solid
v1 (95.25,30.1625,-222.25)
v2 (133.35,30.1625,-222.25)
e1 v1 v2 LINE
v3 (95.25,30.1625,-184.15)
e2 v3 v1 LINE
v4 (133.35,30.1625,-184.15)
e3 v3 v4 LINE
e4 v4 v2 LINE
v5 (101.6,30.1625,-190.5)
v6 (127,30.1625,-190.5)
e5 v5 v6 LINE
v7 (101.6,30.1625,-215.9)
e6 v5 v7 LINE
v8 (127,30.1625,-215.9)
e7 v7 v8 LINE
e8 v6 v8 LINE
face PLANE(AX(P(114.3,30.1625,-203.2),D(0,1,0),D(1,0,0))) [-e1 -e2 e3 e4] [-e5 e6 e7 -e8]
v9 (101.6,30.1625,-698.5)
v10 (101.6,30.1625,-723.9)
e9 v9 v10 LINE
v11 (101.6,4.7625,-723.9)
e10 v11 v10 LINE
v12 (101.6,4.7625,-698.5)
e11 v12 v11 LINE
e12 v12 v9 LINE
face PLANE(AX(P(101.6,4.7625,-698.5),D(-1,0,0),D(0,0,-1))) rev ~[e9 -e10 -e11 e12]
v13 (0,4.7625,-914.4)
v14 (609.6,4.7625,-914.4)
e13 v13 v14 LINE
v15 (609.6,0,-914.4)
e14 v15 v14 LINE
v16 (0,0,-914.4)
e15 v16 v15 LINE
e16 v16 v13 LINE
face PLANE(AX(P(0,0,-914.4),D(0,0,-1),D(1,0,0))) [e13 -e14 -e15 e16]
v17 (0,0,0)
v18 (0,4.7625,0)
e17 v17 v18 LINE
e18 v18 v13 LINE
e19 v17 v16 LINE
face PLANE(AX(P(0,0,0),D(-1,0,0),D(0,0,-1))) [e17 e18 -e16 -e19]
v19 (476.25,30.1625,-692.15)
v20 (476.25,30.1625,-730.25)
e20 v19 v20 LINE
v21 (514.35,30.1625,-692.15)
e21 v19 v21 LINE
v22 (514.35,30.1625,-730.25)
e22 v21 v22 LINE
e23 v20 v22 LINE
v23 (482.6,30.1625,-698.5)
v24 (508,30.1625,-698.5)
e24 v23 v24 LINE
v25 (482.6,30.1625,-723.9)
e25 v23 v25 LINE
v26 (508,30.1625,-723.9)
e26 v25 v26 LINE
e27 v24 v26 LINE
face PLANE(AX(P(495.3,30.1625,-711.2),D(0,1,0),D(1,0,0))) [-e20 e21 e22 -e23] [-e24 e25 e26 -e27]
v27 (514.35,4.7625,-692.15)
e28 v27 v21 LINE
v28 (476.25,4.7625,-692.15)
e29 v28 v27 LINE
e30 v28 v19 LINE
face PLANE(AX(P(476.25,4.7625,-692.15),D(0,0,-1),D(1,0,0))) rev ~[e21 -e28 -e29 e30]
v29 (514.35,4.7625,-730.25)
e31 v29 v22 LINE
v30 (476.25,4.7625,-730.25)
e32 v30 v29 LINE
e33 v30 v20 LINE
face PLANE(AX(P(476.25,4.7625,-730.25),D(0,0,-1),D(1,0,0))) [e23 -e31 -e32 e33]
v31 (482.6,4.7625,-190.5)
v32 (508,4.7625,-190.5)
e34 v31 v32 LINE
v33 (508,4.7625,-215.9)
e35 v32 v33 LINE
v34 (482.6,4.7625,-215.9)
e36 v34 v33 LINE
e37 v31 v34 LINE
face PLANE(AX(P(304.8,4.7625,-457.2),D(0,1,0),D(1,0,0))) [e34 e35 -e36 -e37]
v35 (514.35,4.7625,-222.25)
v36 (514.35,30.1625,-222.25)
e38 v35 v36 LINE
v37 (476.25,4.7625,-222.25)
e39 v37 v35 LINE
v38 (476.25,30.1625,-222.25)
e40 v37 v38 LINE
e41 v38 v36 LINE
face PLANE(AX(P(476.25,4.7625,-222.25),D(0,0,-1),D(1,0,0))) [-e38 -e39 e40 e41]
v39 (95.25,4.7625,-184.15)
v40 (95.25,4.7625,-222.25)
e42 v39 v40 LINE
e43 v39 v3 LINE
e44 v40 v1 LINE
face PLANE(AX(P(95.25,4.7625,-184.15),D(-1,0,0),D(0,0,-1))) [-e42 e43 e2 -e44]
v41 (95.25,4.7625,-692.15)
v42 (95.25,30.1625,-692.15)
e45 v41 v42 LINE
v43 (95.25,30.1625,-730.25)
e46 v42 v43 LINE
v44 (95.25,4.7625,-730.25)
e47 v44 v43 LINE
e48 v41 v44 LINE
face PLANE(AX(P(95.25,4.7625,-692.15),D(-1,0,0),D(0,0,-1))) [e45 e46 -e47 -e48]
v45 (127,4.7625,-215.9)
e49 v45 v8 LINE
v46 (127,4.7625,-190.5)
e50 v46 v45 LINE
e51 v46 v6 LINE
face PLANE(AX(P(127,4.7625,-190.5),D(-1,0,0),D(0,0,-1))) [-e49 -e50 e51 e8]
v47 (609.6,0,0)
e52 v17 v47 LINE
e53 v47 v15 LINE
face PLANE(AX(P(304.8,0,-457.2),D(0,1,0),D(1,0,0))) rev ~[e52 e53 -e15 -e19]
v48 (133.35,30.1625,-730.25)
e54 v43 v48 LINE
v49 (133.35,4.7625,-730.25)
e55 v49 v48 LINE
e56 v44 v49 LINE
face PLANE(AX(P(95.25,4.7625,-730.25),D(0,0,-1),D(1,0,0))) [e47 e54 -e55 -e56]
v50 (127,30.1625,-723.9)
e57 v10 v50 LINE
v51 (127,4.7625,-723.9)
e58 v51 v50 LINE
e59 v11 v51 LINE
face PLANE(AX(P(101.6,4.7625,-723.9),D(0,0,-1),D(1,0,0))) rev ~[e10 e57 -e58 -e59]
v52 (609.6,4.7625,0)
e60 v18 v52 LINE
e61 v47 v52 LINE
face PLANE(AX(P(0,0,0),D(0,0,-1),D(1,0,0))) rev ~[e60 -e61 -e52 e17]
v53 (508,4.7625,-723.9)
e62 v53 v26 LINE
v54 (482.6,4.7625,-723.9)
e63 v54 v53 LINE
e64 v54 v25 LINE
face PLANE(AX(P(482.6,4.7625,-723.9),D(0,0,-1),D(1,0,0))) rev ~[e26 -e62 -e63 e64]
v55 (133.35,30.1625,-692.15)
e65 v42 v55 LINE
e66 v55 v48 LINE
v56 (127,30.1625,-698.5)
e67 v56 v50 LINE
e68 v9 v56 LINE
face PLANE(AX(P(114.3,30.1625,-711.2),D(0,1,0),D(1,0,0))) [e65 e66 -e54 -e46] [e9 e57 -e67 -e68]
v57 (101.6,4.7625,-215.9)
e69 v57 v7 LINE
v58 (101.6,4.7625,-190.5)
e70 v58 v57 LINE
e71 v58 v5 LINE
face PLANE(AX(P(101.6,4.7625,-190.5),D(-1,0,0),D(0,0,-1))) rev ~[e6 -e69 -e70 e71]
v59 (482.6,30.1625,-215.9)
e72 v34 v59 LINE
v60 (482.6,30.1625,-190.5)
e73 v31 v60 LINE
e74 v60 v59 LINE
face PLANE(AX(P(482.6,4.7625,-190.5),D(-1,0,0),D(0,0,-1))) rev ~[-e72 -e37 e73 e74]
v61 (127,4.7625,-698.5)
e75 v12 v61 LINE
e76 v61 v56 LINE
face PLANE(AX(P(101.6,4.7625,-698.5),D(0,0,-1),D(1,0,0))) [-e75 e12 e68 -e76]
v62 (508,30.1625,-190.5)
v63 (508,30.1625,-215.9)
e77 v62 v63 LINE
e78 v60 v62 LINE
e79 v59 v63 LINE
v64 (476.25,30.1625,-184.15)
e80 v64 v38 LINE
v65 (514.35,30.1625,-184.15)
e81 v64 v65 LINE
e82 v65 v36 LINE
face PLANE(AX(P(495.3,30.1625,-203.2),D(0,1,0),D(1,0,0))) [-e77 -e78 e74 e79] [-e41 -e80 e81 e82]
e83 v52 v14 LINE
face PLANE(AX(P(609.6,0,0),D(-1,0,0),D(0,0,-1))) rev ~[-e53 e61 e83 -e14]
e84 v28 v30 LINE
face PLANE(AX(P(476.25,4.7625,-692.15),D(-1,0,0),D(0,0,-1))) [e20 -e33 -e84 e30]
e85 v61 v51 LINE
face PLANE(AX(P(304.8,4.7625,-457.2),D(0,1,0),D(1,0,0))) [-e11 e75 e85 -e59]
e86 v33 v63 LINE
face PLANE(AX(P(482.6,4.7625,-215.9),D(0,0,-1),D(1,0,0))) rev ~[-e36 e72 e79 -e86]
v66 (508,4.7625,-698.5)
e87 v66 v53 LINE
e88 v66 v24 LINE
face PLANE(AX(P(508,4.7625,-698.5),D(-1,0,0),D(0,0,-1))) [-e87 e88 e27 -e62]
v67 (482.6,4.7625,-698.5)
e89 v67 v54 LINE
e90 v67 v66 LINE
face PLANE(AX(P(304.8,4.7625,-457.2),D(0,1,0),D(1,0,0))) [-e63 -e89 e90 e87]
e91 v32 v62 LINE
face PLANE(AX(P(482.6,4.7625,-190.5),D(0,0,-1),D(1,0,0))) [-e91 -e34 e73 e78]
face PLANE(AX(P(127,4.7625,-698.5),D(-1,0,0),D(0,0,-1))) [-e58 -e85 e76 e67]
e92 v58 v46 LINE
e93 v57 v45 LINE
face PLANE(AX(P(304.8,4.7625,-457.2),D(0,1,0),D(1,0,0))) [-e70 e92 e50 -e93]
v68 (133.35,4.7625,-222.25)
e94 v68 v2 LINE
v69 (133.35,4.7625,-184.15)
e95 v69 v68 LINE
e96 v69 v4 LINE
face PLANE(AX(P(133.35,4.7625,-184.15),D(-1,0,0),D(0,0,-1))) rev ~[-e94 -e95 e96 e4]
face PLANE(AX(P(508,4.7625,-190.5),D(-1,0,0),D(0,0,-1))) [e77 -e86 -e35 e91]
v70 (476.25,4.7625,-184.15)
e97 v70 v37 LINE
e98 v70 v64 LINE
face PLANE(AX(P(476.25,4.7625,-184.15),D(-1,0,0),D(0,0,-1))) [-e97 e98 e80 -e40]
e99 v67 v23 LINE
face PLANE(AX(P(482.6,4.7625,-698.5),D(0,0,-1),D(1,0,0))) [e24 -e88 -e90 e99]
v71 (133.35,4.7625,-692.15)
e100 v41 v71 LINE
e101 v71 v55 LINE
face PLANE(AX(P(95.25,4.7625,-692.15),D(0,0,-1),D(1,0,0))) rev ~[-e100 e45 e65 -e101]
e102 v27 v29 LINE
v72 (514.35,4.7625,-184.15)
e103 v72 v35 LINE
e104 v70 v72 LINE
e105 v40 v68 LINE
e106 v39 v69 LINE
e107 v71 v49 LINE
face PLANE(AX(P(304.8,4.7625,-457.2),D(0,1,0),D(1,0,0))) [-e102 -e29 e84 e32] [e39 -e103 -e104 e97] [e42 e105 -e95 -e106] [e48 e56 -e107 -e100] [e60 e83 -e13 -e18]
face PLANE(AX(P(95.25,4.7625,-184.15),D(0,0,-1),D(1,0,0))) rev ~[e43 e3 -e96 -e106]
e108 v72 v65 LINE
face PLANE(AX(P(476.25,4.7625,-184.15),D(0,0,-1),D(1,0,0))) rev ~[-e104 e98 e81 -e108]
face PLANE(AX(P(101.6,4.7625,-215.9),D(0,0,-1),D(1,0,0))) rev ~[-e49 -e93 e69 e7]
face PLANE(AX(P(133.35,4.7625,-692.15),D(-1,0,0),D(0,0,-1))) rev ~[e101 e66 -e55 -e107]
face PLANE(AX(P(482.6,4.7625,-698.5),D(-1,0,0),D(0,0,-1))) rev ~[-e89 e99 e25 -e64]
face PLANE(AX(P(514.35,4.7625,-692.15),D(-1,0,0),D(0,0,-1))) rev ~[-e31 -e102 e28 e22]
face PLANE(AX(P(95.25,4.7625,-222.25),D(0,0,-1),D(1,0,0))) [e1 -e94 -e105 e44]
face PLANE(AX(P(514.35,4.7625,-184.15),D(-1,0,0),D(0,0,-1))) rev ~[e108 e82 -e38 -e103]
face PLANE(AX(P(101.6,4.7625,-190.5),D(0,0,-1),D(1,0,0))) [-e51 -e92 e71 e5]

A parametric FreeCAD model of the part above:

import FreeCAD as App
import Part
import Sketcher

V = App.Vector
Q = App.Units.Quantity


def add_polygon(sketch, points):
    """Adds a closed chain of lines whose ends are joined by coincident constraints."""
    first, n = sketch.GeometryCount, len(points)
    for a, b in zip(points, points[1:] + points[:1]):
        sketch.addGeometry(Part.LineSegment(App.Vector(*a, 0), App.Vector(*b, 0)), False)
    for i in range(n):
        sketch.addConstraint(Sketcher.Constraint("Coincident", first + i, 2, first + (i + 1) % n, 1))

doc = App.newDocument("Part")
body = doc.addObject("PartDesign::Body", "Body")

# Sketch on XZ plane
sketch1 = body.newObject("Sketcher::SketchObject", "Sketch")
sketch1.AttachmentSupport = (doc.getObject("XZ_Plane"), [""])
sketch1.MapMode = "FlatFace"
add_polygon(sketch1, [(0, -914), (0, 0), (610, 0), (610, -914)])  # lines 0-3
sketch1.addConstraint([
    Sketcher.Constraint("Vertical", 0),
    Sketcher.Constraint("Horizontal", 1),
    Sketcher.Constraint("Vertical", 2),
    Sketcher.Constraint("Horizontal", 3),
    Sketcher.Constraint("Coincident", 0, 2, -1, 1),
    Sketcher.Constraint("DistanceX", 1, 1, 1, 2, Q("24 in")),
    Sketcher.Constraint("DistanceY", 0, 1, 0, 2, Q("36 in")),
])
pad1 = body.newObject("PartDesign::Pad", "Pad")
pad1.Profile = sketch1
pad1.Length = Q("0.1875 in")
pad1.Reversed = True

# Sketch on XZ plane
sketch2 = body.newObject("Sketcher::SketchObject", "Sketch001")
sketch2.AttachmentSupport = (doc.getObject("XZ_Plane"), [""])
sketch2.MapMode = "FlatFace"
sketch2.AttachmentOffset = App.Placement(V(0, 0, -0.1875 * 25.4), App.Rotation())
add_polygon(sketch2, [(95, -730), (95, -692), (133, -692), (133, -730)])  # lines 0-3
add_polygon(sketch2, [(127, -698), (102, -698), (102, -724), (127, -724)])  # lines 4-7
add_polygon(sketch2, [(476, -730), (476, -692), (514, -692), (514, -730)])  # lines 8-11
add_polygon(sketch2, [(508, -698), (483, -698), (483, -724), (508, -724)])  # lines 12-15
add_polygon(sketch2, [(476, -222), (476, -184), (514, -184), (514, -222)])  # lines 16-19
add_polygon(sketch2, [(508, -190), (483, -190), (483, -216), (508, -216)])  # lines 20-23
add_polygon(sketch2, [(95, -222), (95, -184), (133, -184), (133, -222)])  # lines 24-27
add_polygon(sketch2, [(127, -190), (102, -190), (102, -216), (127, -216)])  # lines 28-31
sketch2.addConstraint([
    Sketcher.Constraint("Vertical", 0),
    Sketcher.Constraint("Horizontal", 1),
    Sketcher.Constraint("Vertical", 2),
    Sketcher.Constraint("Horizontal", 3),
    Sketcher.Constraint("Horizontal", 4),
    Sketcher.Constraint("Vertical", 5),
    Sketcher.Constraint("Horizontal", 6),
    Sketcher.Constraint("Vertical", 7),
    Sketcher.Constraint("Vertical", 8),
    Sketcher.Constraint("Horizontal", 9),
    Sketcher.Constraint("Vertical", 10),
    Sketcher.Constraint("Horizontal", 11),
    Sketcher.Constraint("Horizontal", 12),
    Sketcher.Constraint("Vertical", 13),
    Sketcher.Constraint("Horizontal", 14),
    Sketcher.Constraint("Vertical", 15),
    Sketcher.Constraint("Vertical", 16),
    Sketcher.Constraint("Horizontal", 17),
    Sketcher.Constraint("Vertical", 18),
    Sketcher.Constraint("Horizontal", 19),
    Sketcher.Constraint("Horizontal", 20),
    Sketcher.Constraint("Vertical", 21),
    Sketcher.Constraint("Horizontal", 22),
    Sketcher.Constraint("Vertical", 23),
    Sketcher.Constraint("Vertical", 24),
    Sketcher.Constraint("Horizontal", 25),
    Sketcher.Constraint("Vertical", 26),
    Sketcher.Constraint("Horizontal", 27),
    Sketcher.Constraint("Horizontal", 28),
    Sketcher.Constraint("Vertical", 29),
    Sketcher.Constraint("Horizontal", 30),
    Sketcher.Constraint("Vertical", 31),
    Sketcher.Constraint("Horizontal", 1, 2, 8, 2),
    Sketcher.Constraint("Horizontal", 3, 2, 10, 2),
    Sketcher.Constraint("Horizontal", 7, 2, 12, 2),
    Sketcher.Constraint("Horizontal", 6, 2, 13, 2),
    Sketcher.Constraint("Horizontal", 17, 2, 24, 2),
    Sketcher.Constraint("Horizontal", 19, 2, 26, 2),
    Sketcher.Constraint("Horizontal", 23, 2, 28, 2),
    Sketcher.Constraint("Horizontal", 22, 2, 29, 2),
    Sketcher.Constraint("Vertical", 11, 2, 16, 2),
    Sketcher.Constraint("Vertical", 10, 2, 17, 2),
    Sketcher.Constraint("Vertical", 13, 2, 20, 2),
    Sketcher.Constraint("Vertical", 15, 2, 22, 2),
    Sketcher.Constraint("Vertical", 3, 2, 24, 2),
    Sketcher.Constraint("Vertical", 2, 2, 25, 2),
    Sketcher.Constraint("Vertical", 5, 2, 28, 2),
    Sketcher.Constraint("Vertical", 7, 2, 30, 2),
    Sketcher.Constraint("Equal", 3, 9),
    Sketcher.Constraint("Equal", 6, 12),
    Sketcher.Constraint("Equal", 27, 0),
    Sketcher.Constraint("Equal", 30, 5),
    Sketcher.Constraint("Equal", 10, 16),
    Sketcher.Constraint("Equal", 15, 21),
    Sketcher.Constraint("DistanceX", 4, 2, 4, 1, Q("1 in")),
    Sketcher.Constraint("DistanceX", 1, 1, 1, 2, Q("1.5 in")),
    Sketcher.Constraint("DistanceX", -1, 1, 4, 2, Q("4 in")),
    Sketcher.Constraint("DistanceX", -1, 1, 12, 2, Q("19 in")),
    Sketcher.Constraint("DistanceX", 1, 2, 9, 2, Q("15 in")),
    Sketcher.Constraint("DistanceY", 8, 2, 16, 2, Q("20 in")),
    Sketcher.Constraint("DistanceY", 4, 2, -1, 1, Q("27.5 in")),
    Sketcher.Constraint("DistanceY", 20, 2, -1, 1, Q("7.5 in")),
    Sketcher.Constraint("DistanceX", -1, 1, 0, 2, Q("3.75 in")),
    Sketcher.Constraint("DistanceY", 0, 2, -1, 1, Q("27.25 in")),
])
pad2 = body.newObject("PartDesign::Pad", "Pad001")
pad2.Profile = sketch2
pad2.Length = Q("1 in")
pad2.Reversed = True

doc.recompute()
